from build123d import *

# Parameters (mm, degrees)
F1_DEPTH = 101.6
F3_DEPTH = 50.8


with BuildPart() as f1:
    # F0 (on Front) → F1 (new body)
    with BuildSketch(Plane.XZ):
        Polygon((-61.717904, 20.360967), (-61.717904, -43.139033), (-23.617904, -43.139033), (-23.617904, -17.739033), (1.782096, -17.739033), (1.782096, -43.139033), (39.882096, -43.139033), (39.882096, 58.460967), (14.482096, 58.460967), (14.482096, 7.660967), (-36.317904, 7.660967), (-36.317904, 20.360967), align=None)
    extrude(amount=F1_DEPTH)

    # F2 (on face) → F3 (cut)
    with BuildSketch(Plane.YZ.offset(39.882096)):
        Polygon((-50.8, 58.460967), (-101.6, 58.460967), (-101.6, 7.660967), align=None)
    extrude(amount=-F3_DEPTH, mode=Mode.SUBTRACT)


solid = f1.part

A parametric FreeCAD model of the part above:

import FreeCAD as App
import Part
import Sketcher
Q = App.Units.Quantity


def add_polygon(sketch, points):
    """Adds a closed chain of lines whose ends are joined by coincident constraints."""
    first, n = sketch.GeometryCount, len(points)
    for a, b in zip(points, points[1:] + points[:1]):
        sketch.addGeometry(Part.LineSegment(App.Vector(*a, 0), App.Vector(*b, 0)), False)
    for i in range(n):
        sketch.addConstraint(Sketcher.Constraint("Coincident", first + i, 2, first + (i + 1) % n, 1))

doc = App.newDocument("Part")
body = doc.addObject("PartDesign::Body", "Body")

# Sketch on XZ plane
sketch1 = body.newObject("Sketcher::SketchObject", "Sketch")
sketch1.AttachmentSupport = (doc.getObject("XZ_Plane"), [""])
sketch1.MapMode = "FlatFace"
add_polygon(sketch1, [(-62, 20), (-62, -43), (-24, -43), (-24, -18), (2, -18), (2, -43), (40, -43), (40, 58), (14, 58), (14, 8), (-36, 8), (-36, 20)])  # lines 0-11
sketch1.addConstraint(Sketcher.Constraint("Vertical", 0))
sketch1.addConstraint(Sketcher.Constraint("Horizontal", 1))
sketch1.addConstraint(Sketcher.Constraint("Vertical", 2))
sketch1.addConstraint(Sketcher.Constraint("Horizontal", 3))
sketch1.addConstraint(Sketcher.Constraint("Vertical", 4))
sketch1.addConstraint(Sketcher.Constraint("Horizontal", 5))
sketch1.addConstraint(Sketcher.Constraint("Vertical", 6))
sketch1.addConstraint(Sketcher.Constraint("Horizontal", 7))
sketch1.addConstraint(Sketcher.Constraint("Vertical", 8))
sketch1.addConstraint(Sketcher.Constraint("Horizontal", 9))
sketch1.addConstraint(Sketcher.Constraint("Vertical", 10))
sketch1.addConstraint(Sketcher.Constraint("Horizontal", 11))
sketch1.addConstraint(Sketcher.Constraint("Horizontal", 1, 2, 4, 2))
sketch1.addConstraint(Sketcher.Constraint("Equal", 1, 5))
sketch1.addConstraint(Sketcher.Constraint("Equal", 3, 7))
sketch1.addConstraint(Sketcher.Constraint("Equal", 7, 11))
sketch1.addConstraint(Sketcher.Constraint("Equal", 11, 2))
sketch1.addConstraint(Sketcher.Constraint("Equal", 9, 8))
sketch1.addConstraint(Sketcher.Constraint("DistanceX", 3, 1, 3, 2, Q("1 in")))
sketch1.addConstraint(Sketcher.Constraint("DistanceX", 9, 2, 9, 1, Q("2 in")))
sketch1.addConstraint(Sketcher.Constraint("DistanceY", 6, 1, 6, 2, Q("4 in")))
sketch1.addConstraint(Sketcher.Constraint("DistanceY", 0, 2, 0, 1, Q("2.5 in")))
sketch1.addConstraint(Sketcher.Constraint("DistanceX", 0, 2, -1, 1, Q("61.717904 mm")))
sketch1.addConstraint(Sketcher.Constraint("DistanceY", 0, 2, -1, 1, Q("43.139033 mm")))
pad1 = body.newObject("PartDesign::Pad", "Pad")
pad1.Profile = sketch1
pad1.Length = Q("4 in")

# Sketch on YZ plane
sketch2 = body.newObject("Sketcher::SketchObject", "Sketch001")
sketch2.AttachmentSupport = (doc.getObject("YZ_Plane"), [""])
sketch2.MapMode = "FlatFace"
sketch2.AttachmentOffset = App.Placement(App.Vector(0, 0, 39.882096), App.Rotation())
add_polygon(sketch2, [(-51, 58), (-102, 58), (-102, 8)])  # lines 0-2
sketch2.addConstraint(Sketcher.Constraint("Horizontal", 0))
sketch2.addConstraint(Sketcher.Constraint("Vertical", 1))
sketch2.addConstraint(Sketcher.Constraint("Equal", 0, 1))
sketch2.addConstraint(Sketcher.Constraint("DistanceX", 0, 2, 0, 1, Q("2 in")))
sketch2.addConstraint(Sketcher.Constraint("DistanceX", 0, 2, -1, 1, Q("4 in")))
sketch2.addConstraint(Sketcher.Constraint("DistanceY", -1, 1, 0, 2, Q("58.460967 mm")))
pocket1 = body.newObject("PartDesign::Pocket", "Pocket")
pocket1.Profile = sketch2
pocket1.Length = Q("2 in")

doc.recompute()
